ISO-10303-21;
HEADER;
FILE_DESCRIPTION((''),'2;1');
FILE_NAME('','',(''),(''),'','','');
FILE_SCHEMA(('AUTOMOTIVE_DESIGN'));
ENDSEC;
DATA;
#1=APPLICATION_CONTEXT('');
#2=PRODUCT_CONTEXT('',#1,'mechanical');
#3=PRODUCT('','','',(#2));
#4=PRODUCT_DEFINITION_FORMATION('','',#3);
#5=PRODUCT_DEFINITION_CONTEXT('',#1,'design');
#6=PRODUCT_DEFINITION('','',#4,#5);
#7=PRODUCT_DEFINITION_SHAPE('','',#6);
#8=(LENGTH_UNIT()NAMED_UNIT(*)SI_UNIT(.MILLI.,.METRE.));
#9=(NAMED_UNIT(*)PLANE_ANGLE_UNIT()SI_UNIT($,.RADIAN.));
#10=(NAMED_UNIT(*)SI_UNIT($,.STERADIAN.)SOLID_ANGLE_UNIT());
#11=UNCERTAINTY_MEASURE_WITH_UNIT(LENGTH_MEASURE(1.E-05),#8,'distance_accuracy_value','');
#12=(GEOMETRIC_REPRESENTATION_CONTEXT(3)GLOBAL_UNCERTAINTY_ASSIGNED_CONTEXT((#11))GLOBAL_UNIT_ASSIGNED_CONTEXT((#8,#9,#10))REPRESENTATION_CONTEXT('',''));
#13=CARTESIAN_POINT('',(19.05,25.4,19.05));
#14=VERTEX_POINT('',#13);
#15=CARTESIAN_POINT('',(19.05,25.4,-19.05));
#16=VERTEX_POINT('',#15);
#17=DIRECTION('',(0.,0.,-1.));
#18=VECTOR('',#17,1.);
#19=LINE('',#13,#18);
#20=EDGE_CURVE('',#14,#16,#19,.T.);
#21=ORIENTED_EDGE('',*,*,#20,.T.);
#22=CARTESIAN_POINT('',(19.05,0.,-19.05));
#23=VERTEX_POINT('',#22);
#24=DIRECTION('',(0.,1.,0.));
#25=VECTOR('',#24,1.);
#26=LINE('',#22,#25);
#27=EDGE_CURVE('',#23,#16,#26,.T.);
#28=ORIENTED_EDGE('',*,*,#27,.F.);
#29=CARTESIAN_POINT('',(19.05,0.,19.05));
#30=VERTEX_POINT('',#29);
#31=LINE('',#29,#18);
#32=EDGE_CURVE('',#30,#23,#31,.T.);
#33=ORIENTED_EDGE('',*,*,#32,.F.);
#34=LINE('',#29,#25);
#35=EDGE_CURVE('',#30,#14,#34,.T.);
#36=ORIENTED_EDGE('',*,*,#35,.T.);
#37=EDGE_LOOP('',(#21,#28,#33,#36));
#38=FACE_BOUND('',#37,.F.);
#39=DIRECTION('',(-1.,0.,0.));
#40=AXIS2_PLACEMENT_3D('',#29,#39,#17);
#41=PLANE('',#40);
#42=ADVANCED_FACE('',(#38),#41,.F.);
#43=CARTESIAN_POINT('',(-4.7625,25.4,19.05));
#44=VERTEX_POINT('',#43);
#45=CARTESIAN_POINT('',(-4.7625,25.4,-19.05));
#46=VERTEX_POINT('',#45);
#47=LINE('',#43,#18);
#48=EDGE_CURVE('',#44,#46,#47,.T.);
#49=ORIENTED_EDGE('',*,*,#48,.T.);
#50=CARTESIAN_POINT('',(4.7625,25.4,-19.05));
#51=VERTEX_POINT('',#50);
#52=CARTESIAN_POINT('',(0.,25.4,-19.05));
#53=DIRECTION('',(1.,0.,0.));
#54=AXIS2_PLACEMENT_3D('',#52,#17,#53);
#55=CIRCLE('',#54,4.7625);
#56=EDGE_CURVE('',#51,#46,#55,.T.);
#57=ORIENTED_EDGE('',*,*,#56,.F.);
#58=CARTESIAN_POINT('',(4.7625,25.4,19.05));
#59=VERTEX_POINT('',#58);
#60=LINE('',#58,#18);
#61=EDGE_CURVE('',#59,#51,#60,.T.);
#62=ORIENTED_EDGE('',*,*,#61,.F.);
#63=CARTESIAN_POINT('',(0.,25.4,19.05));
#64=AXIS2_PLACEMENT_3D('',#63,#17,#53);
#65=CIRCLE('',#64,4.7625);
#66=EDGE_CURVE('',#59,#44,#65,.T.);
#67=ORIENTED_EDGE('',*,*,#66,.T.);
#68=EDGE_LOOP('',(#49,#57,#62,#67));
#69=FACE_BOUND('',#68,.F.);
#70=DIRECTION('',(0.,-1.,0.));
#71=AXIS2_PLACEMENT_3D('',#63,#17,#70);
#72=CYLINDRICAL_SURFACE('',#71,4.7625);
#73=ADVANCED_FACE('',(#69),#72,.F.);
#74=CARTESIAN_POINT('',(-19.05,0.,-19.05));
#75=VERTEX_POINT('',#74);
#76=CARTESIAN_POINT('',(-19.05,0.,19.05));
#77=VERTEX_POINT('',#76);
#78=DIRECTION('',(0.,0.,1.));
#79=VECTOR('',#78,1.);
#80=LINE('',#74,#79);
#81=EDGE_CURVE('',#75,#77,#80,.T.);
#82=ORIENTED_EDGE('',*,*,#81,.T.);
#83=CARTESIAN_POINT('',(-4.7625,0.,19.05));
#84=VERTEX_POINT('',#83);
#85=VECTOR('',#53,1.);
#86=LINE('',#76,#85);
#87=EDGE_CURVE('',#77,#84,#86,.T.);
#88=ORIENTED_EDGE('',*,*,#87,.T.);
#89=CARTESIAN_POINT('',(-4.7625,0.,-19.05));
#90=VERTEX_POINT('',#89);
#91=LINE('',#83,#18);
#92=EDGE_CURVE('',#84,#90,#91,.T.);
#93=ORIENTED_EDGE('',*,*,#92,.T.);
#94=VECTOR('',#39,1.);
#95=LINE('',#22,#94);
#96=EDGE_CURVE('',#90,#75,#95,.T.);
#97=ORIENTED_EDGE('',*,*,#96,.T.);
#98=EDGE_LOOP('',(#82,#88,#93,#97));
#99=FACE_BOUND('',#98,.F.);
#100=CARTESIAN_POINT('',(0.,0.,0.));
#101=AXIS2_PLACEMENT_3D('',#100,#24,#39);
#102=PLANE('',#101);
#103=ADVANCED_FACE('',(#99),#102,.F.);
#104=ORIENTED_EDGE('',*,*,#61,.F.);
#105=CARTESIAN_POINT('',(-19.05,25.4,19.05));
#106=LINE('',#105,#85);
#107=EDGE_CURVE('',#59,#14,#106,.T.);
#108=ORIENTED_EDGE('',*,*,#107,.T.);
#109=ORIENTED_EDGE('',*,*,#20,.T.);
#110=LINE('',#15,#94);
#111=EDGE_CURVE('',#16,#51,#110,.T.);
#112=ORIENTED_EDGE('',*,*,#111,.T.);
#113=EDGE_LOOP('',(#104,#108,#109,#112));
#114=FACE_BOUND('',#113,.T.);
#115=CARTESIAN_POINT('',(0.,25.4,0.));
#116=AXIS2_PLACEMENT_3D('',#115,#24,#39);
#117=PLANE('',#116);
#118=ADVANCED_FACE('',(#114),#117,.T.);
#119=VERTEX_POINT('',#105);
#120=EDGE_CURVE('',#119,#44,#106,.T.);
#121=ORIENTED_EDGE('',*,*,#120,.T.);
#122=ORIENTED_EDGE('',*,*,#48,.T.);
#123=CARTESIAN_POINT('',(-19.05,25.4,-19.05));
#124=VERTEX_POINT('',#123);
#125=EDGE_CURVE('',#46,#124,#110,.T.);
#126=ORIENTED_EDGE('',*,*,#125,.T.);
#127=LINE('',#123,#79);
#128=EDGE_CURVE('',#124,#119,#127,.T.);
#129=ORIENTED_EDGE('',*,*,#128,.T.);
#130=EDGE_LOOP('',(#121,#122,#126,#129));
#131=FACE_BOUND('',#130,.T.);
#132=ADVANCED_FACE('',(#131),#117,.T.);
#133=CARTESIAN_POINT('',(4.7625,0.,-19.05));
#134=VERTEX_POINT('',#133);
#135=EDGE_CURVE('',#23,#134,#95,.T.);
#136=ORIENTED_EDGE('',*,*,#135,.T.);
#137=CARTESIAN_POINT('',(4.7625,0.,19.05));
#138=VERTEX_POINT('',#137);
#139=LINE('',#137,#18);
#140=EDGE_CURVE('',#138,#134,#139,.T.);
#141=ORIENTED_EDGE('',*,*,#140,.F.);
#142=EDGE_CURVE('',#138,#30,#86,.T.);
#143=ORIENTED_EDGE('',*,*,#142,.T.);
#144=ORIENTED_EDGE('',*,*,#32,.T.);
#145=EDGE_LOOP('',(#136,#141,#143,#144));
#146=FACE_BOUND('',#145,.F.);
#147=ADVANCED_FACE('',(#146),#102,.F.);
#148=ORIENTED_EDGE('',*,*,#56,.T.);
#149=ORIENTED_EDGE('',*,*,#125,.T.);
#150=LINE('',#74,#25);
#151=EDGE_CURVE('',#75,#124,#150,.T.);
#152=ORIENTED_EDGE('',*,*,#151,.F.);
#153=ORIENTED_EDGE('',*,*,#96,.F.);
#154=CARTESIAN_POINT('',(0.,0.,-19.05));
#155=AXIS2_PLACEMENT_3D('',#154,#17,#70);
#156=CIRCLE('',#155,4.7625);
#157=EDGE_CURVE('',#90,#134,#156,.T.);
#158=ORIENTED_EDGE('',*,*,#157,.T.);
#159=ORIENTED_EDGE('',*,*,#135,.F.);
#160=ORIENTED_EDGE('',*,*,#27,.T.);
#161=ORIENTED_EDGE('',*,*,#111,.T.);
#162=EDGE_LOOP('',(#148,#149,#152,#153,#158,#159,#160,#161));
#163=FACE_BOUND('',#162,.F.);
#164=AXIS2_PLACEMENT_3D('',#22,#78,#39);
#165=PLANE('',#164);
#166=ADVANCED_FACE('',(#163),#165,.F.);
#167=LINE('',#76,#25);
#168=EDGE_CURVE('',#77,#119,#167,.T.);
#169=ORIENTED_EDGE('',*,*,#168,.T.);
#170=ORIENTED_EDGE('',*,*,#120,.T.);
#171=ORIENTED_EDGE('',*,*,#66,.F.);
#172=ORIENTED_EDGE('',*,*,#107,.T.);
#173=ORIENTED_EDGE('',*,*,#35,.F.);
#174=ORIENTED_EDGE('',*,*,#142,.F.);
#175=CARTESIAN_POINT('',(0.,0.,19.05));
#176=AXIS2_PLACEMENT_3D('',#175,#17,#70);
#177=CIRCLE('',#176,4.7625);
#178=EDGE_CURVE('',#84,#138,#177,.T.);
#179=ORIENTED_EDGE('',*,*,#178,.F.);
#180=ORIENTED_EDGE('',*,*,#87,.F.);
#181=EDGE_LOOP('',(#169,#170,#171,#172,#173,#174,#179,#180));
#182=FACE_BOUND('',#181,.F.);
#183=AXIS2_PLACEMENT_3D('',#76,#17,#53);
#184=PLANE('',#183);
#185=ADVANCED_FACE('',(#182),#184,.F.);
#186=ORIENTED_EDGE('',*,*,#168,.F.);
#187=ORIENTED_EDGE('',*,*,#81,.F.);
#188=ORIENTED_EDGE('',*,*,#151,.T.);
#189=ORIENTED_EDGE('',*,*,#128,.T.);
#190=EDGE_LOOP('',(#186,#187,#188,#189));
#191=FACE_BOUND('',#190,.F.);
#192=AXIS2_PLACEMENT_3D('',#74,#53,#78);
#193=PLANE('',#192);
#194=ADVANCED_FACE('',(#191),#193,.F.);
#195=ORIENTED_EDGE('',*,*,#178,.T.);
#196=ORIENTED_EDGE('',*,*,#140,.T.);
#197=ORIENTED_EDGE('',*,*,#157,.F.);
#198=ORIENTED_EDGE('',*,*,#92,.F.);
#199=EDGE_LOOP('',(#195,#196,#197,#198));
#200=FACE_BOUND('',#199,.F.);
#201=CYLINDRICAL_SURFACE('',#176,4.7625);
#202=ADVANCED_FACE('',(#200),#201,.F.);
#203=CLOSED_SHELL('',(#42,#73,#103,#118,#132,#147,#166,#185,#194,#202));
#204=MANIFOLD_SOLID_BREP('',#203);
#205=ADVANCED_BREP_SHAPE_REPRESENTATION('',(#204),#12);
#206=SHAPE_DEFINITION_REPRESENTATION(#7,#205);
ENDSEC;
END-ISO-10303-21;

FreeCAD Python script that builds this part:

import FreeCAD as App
import Part
import Sketcher
Q = App.Units.Quantity

doc = App.newDocument("Part")
body = doc.addObject("PartDesign::Body", "Body")

sketch1 = body.newObject("Sketcher::SketchObject", "Sketch")
sketch1.AttachmentSupport = (doc.getObject("XZ_Plane"), [""])
sketch1.MapMode = "FlatFace"
sketch1.addGeometry([
    Part.LineSegment(App.Vector(-19, 19, 0), App.Vector(19, 19, 0)),
    Part.LineSegment(App.Vector(19, 19, 0), App.Vector(19, -19, 0)),
    Part.LineSegment(App.Vector(19, -19, 0), App.Vector(-19, -19, 0)),
    Part.LineSegment(App.Vector(-19, -19, 0), App.Vector(-19, 19, 0)),
], False)
sketch1.addConstraint([
    Sketcher.Constraint("Coincident", 0, 2, 1, 1),
    Sketcher.Constraint("Coincident", 1, 2, 2, 1),
    Sketcher.Constraint("Coincident", 2, 2, 3, 1),
    Sketcher.Constraint("Coincident", 3, 2, 0, 1),
    Sketcher.Constraint("Horizontal", 0),
    Sketcher.Constraint("Vertical", 1),
    Sketcher.Constraint("Horizontal", 2),
    Sketcher.Constraint("Vertical", 3),
    Sketcher.Constraint("Symmetric", 0, 2, 2, 2, -1, 1),
    Sketcher.Constraint("Equal", 2, 1),
    Sketcher.Constraint("DistanceX", 0, 1, 0, 2, Q("1.5 in")),
])
pad1 = body.newObject("PartDesign::Pad", "Pad")
pad1.Profile = sketch1
pad1.Length = Q("1 in")
pad1.Reversed = True

sketch2 = body.newObject("Sketcher::SketchObject", "Sketch001")
sketch2.AttachmentSupport = (doc.getObject("XY_Plane"), [""])
sketch2.MapMode = "FlatFace"
sketch2.AttachmentOffset = App.Placement(App.Vector(0, 0, 0.75 * 25.4), App.Rotation())
sketch2.addGeometry([
    Part.Circle(App.Vector(0, 25.4, 0), App.Vector(0, 0, 1), 4.8),
    Part.Circle(App.Vector(0, 0, 0), App.Vector(0, 0, 1), 4.8),
], False)
sketch2.addConstraint([
    Sketcher.Constraint("Coincident", 1, 3, -1, 1),
    Sketcher.Constraint("Equal", 0, 1),
    Sketcher.Constraint("PointOnObject", 0, 3, -2),
    Sketcher.Constraint("Diameter", 0, Q("0.375 in")),
    Sketcher.Constraint("DistanceY", -1, 1, 0, 3, Q("1 in")),
])
doc.recompute()
hole = body.newObject("PartDesign::Hole", "Hole")
hole.Profile = sketch2
hole.ThreadType = "None"
hole.Diameter = Q("0.375 in")
hole.DepthType = "ThroughAll"

doc.recompute()
